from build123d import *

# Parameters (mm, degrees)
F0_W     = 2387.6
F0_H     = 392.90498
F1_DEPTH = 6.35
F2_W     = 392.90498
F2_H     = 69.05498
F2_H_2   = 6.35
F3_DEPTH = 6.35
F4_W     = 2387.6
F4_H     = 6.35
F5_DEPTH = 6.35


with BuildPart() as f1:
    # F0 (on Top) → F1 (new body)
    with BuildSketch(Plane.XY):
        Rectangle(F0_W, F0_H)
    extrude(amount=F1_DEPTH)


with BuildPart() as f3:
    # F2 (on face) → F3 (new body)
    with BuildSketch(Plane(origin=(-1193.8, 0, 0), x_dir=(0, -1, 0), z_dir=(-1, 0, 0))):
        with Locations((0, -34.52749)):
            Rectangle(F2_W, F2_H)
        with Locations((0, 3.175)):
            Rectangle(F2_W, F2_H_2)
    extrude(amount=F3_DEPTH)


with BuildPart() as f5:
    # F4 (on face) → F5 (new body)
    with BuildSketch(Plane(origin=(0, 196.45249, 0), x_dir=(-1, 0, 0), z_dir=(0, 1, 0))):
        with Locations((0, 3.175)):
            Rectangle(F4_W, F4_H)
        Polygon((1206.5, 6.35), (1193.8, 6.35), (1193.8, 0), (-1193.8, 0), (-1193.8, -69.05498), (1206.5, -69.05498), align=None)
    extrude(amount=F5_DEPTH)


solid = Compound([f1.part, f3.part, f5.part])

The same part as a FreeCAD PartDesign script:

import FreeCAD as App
import Part
import Sketcher
from FreeCAD import Vector
Q = App.Units.Quantity

doc = App.newDocument("Part")
body = doc.addObject("PartDesign::Body", "Body")

# Sketch on XY plane
sketch1 = body.newObject("Sketcher::SketchObject", "Sketch")
sketch1.AttachmentSupport = (doc.getObject("XY_Plane"), [""])
sketch1.MapMode = "FlatFace"
sketch1.addGeometry([
    Part.LineSegment(Vector(-1194, 196, 0), Vector(-1194, -196, 0)),
    Part.LineSegment(Vector(-1194, -196, 0), Vector(1194, -196, 0)),
    Part.LineSegment(Vector(1194, -196, 0), Vector(1194, 196, 0)),
    Part.LineSegment(Vector(1194, 196, 0), Vector(-1194, 196, 0)),
], False)
sketch1.addConstraint([
    Sketcher.Constraint("Coincident", 0, 2, 1, 1),
    Sketcher.Constraint("Coincident", 1, 2, 2, 1),
    Sketcher.Constraint("Coincident", 2, 2, 3, 1),
    Sketcher.Constraint("Coincident", 3, 2, 0, 1),
    Sketcher.Constraint("Vertical", 0),
    Sketcher.Constraint("Horizontal", 1),
    Sketcher.Constraint("Vertical", 2),
    Sketcher.Constraint("Horizontal", 3),
    Sketcher.Constraint("Symmetric", 0, 2, 2, 2, -1, 1),
    Sketcher.Constraint("DistanceX", 1, 1, 1, 2, Q("94 in")),
    Sketcher.Constraint("DistanceY", 0, 2, 0, 1, Q("15.4687 in")),
])
pad1 = body.newObject("PartDesign::Pad", "Pad")
pad1.Profile = sketch1
pad1.Length = Q("0.25 in")
body2 = doc.addObject("PartDesign::Body", "Body001")

# Sketch on YZ plane
sketch2 = body2.newObject("Sketcher::SketchObject", "Sketch001")
sketch2.AttachmentSupport = (doc.getObject("YZ_Plane001"), [""])
sketch2.MapMode = "FlatFace"
sketch2.AttachmentOffset = App.Placement(Vector(0, 0, -47 * 25.4), App.Rotation())
sketch2.addGeometry([
    Part.LineSegment(Vector(196, -69, 0), Vector(-196, -69, 0)),
    Part.LineSegment(Vector(-196, -69, 0), Vector(-196, 6, 0)),
    Part.LineSegment(Vector(-196, 6, 0), Vector(196, 6, 0)),
    Part.LineSegment(Vector(196, 6, 0), Vector(196, -69, 0)),
], False)
sketch2.addConstraint([
    Sketcher.Constraint("Coincident", 0, 2, 1, 1),
    Sketcher.Constraint("Coincident", 1, 2, 2, 1),
    Sketcher.Constraint("Coincident", 2, 2, 3, 1),
    Sketcher.Constraint("Coincident", 3, 2, 0, 1),
    Sketcher.Constraint("Horizontal", 0),
    Sketcher.Constraint("Vertical", 1),
    Sketcher.Constraint("Horizontal", 2),
    Sketcher.Constraint("Vertical", 3),
    Sketcher.Constraint("DistanceY", -1, 1, 1, 2, Q("0.25 in")),
    Sketcher.Constraint("DistanceX", 0, 2, 0, 1, Q("15.4687 in")),
    Sketcher.Constraint("DistanceY", 1, 1, 1, 2, Q("2.9687 in")),
    Sketcher.Constraint("DistanceX", 0, 2, -1, 1, 196.45249),
])
pad2 = body2.newObject("PartDesign::Pad", "Pad001")
pad2.Profile = sketch2
pad2.Length = Q("0.25 in")
pad2.Reversed = True
body3 = doc.addObject("PartDesign::Body", "Body002")

# Sketch on XZ plane
sketch3 = body3.newObject("Sketcher::SketchObject", "Sketch002")
sketch3.AttachmentSupport = (doc.getObject("XZ_Plane002"), [""])
sketch3.MapMode = "FlatFace"
sketch3.AttachmentOffset = App.Placement(Vector(0, 0, -196.45249), App.Rotation())
sketch3.addGeometry([
    Part.LineSegment(Vector(1194, 6, 0), Vector(1194, -69, 0)),
    Part.LineSegment(Vector(1194, -69, 0), Vector(-1206, -69, 0)),
    Part.LineSegment(Vector(-1206, -69, 0), Vector(-1206, 6, 0)),
    Part.LineSegment(Vector(-1206, 6, 0), Vector(1194, 6, 0)),
], False)
sketch3.addConstraint([
    Sketcher.Constraint("Coincident", 0, 2, 1, 1),
    Sketcher.Constraint("Coincident", 1, 2, 2, 1),
    Sketcher.Constraint("Coincident", 2, 2, 3, 1),
    Sketcher.Constraint("Coincident", 3, 2, 0, 1),
    Sketcher.Constraint("Vertical", 0),
    Sketcher.Constraint("Horizontal", 1),
    Sketcher.Constraint("Vertical", 2),
    Sketcher.Constraint("Horizontal", 3),
    Sketcher.Constraint("DistanceX", 1, 2, 1, 1, Q("94.5 in")),
    Sketcher.Constraint("DistanceX", -1, 1, 0, 2, Q("47 in")),
    Sketcher.Constraint("DistanceY", -1, 1, 2, 2, Q("0.25 in")),
    Sketcher.Constraint("DistanceY", 0, 2, 0, 1, Q("2.9687 in")),
])
pad3 = body3.newObject("PartDesign::Pad", "Pad002")
pad3.Profile = sketch3
pad3.Length = Q("0.25 in")
pad3.Reversed = True

doc.recompute()
